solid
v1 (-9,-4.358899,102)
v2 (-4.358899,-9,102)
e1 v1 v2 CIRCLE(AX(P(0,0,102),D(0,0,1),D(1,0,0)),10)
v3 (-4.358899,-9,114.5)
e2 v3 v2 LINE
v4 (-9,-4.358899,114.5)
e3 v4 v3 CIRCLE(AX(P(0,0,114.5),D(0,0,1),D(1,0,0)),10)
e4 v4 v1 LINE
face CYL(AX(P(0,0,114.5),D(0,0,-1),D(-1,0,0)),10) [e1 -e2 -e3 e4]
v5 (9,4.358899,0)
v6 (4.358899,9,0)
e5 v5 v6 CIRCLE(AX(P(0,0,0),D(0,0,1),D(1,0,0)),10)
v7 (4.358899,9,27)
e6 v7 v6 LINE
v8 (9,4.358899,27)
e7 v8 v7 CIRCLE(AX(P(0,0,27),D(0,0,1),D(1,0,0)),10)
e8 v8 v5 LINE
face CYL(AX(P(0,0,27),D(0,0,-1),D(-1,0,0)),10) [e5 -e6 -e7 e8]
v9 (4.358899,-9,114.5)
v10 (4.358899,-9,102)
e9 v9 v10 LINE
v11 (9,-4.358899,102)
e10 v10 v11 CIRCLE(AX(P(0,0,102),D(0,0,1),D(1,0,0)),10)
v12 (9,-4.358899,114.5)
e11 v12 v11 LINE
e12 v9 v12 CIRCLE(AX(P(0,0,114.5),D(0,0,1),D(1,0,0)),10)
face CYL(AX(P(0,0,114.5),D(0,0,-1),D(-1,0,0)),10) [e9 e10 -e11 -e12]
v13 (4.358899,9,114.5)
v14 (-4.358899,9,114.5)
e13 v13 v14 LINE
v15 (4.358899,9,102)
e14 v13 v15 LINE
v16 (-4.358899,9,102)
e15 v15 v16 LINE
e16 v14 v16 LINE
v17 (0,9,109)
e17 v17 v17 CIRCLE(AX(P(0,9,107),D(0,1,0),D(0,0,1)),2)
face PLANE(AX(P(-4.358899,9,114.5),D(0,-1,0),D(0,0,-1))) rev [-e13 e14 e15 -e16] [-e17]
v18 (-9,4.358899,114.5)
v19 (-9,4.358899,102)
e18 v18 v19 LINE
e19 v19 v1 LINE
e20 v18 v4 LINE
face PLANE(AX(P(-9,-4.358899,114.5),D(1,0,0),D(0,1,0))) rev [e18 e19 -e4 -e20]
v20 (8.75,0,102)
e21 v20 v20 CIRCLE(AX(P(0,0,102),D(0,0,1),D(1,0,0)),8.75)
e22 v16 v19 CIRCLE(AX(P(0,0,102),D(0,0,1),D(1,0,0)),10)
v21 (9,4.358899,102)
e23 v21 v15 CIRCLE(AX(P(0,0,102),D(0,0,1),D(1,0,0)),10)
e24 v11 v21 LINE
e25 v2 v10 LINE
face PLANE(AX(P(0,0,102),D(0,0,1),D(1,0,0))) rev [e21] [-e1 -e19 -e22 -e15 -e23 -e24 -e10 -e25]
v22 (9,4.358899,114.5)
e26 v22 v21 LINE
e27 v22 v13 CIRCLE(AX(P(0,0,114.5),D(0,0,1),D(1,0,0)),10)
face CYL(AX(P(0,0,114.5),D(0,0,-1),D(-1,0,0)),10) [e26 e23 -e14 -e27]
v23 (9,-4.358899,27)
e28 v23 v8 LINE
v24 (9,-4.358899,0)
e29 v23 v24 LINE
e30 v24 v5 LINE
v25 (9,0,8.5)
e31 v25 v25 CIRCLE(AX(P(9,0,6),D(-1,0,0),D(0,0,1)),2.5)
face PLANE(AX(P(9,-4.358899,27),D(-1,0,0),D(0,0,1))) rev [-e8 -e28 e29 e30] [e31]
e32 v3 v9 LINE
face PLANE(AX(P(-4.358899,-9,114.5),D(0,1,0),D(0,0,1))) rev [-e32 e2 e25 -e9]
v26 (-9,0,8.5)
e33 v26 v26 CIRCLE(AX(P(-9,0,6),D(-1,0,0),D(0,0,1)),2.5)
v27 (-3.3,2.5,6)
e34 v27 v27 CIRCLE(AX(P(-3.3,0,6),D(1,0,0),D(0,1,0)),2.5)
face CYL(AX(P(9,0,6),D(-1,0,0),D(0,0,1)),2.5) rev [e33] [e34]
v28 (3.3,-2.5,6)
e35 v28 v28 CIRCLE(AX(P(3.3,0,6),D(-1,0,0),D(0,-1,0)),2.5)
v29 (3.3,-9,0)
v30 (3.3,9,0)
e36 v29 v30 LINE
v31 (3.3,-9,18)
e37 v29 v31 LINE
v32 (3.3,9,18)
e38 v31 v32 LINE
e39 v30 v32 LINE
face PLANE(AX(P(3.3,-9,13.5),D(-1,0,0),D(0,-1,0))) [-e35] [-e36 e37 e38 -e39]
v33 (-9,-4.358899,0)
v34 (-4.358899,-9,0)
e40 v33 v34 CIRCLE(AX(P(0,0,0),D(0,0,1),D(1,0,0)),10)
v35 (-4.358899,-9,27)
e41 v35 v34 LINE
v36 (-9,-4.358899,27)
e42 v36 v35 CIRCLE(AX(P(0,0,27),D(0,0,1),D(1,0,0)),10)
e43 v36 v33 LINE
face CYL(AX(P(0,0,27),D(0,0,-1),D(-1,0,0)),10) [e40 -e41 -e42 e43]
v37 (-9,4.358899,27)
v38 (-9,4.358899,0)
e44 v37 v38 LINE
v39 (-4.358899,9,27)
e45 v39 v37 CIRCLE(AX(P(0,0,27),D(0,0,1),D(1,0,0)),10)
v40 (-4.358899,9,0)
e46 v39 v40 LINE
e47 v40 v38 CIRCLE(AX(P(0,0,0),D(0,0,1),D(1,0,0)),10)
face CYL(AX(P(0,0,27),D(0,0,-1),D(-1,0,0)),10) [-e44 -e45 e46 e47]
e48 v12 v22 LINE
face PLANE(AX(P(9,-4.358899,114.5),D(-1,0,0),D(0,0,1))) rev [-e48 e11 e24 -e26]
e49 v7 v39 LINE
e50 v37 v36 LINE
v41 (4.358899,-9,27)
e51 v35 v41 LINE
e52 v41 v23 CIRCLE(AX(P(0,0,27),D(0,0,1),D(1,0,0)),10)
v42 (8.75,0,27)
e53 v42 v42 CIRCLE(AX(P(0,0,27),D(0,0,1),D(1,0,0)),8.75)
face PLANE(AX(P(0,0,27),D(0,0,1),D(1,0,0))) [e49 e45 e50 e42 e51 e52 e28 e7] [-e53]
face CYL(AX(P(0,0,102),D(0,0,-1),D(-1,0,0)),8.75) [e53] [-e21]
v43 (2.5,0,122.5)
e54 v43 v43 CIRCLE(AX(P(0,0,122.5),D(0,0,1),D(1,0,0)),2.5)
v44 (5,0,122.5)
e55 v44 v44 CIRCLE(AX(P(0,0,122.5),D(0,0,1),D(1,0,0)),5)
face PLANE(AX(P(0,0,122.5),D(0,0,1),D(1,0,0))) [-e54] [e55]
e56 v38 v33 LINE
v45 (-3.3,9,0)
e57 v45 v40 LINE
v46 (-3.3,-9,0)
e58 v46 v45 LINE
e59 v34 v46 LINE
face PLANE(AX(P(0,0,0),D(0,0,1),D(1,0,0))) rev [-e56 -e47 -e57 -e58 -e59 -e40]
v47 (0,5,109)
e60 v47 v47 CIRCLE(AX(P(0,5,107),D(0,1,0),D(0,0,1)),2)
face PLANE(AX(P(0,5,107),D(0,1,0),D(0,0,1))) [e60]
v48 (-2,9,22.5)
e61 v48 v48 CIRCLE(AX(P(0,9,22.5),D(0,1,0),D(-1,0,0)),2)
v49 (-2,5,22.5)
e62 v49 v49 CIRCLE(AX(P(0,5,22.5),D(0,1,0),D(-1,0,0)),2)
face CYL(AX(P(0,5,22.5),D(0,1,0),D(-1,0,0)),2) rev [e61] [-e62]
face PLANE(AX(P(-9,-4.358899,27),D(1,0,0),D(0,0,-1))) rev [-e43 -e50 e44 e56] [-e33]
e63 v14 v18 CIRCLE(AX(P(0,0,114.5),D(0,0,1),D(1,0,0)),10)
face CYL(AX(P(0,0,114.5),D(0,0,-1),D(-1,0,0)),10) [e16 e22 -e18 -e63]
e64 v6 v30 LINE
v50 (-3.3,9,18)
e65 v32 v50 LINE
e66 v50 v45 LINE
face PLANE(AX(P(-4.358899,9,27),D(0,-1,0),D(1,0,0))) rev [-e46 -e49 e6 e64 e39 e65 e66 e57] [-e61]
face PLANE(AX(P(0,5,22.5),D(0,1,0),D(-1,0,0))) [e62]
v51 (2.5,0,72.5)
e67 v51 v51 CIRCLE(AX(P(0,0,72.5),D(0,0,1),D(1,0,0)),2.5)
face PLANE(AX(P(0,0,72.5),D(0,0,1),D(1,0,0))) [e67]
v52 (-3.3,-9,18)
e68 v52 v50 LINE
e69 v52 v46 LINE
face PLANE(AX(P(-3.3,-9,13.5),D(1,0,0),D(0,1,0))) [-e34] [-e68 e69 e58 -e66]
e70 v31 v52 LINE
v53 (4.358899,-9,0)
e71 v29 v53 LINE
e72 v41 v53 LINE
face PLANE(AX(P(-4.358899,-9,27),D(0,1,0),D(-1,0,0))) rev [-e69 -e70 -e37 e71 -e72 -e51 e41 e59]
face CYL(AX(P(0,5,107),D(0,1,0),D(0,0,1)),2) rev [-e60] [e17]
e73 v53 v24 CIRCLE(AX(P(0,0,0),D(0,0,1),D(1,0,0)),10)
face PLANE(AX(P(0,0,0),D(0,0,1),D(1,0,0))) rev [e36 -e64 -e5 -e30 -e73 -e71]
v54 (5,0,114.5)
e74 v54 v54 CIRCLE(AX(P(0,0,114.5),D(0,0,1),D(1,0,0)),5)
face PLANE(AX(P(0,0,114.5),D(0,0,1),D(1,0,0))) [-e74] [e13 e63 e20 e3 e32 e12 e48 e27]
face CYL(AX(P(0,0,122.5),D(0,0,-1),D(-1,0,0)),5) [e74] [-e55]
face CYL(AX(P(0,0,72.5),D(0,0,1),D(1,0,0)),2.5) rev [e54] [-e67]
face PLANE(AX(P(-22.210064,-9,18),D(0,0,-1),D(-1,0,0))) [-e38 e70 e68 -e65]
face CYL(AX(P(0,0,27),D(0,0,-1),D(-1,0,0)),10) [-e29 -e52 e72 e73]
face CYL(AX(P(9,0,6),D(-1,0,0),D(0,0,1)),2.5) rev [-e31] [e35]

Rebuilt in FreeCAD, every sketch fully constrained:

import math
import FreeCAD as App
import Part
import Sketcher
Q = App.Units.Quantity

doc = App.newDocument("Part")
body = doc.addObject("PartDesign::Body", "Body")

# Sketch on XY plane
sketch1 = body.newObject("Sketcher::SketchObject", "Sketch")
sketch1.AttachmentSupport = (doc.getObject("XY_Plane"), [""])
sketch1.MapMode = "FlatFace"
sketch1.addGeometry(Part.LineSegment(App.Vector(-4, -9, 0), App.Vector(4, -9, 0)), False)
sketch1.addGeometry(Part.ArcOfCircle(Part.Circle(App.Vector(0, 0, 0), App.Vector(0, 0, 1), 10), math.radians(-64), math.radians(-26)), False)
sketch1.addGeometry(Part.LineSegment(App.Vector(9, -4, 0), App.Vector(9, 4, 0)), False)
sketch1.addGeometry(Part.ArcOfCircle(Part.Circle(App.Vector(0, 0, 0), App.Vector(0, 0, 1), 10), math.radians(26), math.radians(64)), False)
sketch1.addGeometry(Part.LineSegment(App.Vector(4, 9, 0), App.Vector(-4, 9, 0)), False)
sketch1.addGeometry(Part.ArcOfCircle(Part.Circle(App.Vector(0, 0, 0), App.Vector(0, 0, 1), 10), math.radians(116), math.radians(154)), False)
sketch1.addGeometry(Part.LineSegment(App.Vector(-9, 4, 0), App.Vector(-9, -4, 0)), False)
sketch1.addGeometry(Part.ArcOfCircle(Part.Circle(App.Vector(0, 0, 0), App.Vector(0, 0, 1), 10), math.radians(-154), math.radians(-116)), False)
sketch1.addConstraint(Sketcher.Constraint("Coincident", 0, 2, 1, 1))
sketch1.addConstraint(Sketcher.Constraint("Coincident", 1, 2, 2, 1))
sketch1.addConstraint(Sketcher.Constraint("Coincident", 2, 2, 3, 1))
sketch1.addConstraint(Sketcher.Constraint("Coincident", 3, 2, 4, 1))
sketch1.addConstraint(Sketcher.Constraint("Coincident", 4, 2, 5, 1))
sketch1.addConstraint(Sketcher.Constraint("Coincident", 5, 2, 6, 1))
sketch1.addConstraint(Sketcher.Constraint("Coincident", 6, 2, 7, 1))
sketch1.addConstraint(Sketcher.Constraint("Coincident", 7, 2, 0, 1))
sketch1.addConstraint(Sketcher.Constraint("Horizontal", 0))
sketch1.addConstraint(Sketcher.Constraint("Vertical", 2))
sketch1.addConstraint(Sketcher.Constraint("Horizontal", 4))
sketch1.addConstraint(Sketcher.Constraint("Vertical", 6))
sketch1.addConstraint(Sketcher.Constraint("Coincident", 1, 3, -1, 1))
sketch1.addConstraint(Sketcher.Constraint("Coincident", 3, 3, -1, 1))
sketch1.addConstraint(Sketcher.Constraint("Coincident", 5, 3, -1, 1))
sketch1.addConstraint(Sketcher.Constraint("Coincident", 7, 3, -1, 1))
sketch1.addConstraint(Sketcher.Constraint("Equal", 1, 3))
sketch1.addConstraint(Sketcher.Constraint("Equal", 3, 5))
sketch1.addConstraint(Sketcher.Constraint("Equal", 5, 7))
sketch1.addConstraint(Sketcher.Constraint("Horizontal", 2, 2, 5, 2))
sketch1.addConstraint(Sketcher.Constraint("Vertical", 0, 2, 3, 2))
sketch1.addConstraint(Sketcher.Constraint("Equal", 4, 2))
sketch1.addConstraint(Sketcher.Constraint("Radius", 1, Q("10 mm")))
sketch1.addConstraint(Sketcher.Constraint("DistanceY", 0, 2, -1, 1, Q("9 mm")))
pad1 = body.newObject("PartDesign::Pad", "Pad")
pad1.Profile = sketch1
pad1.Length = 27

# Sketch on XY plane
sketch2 = body.newObject("Sketcher::SketchObject", "Sketch001")
sketch2.AttachmentSupport = (doc.getObject("XY_Plane"), [""])
sketch2.MapMode = "FlatFace"
sketch2.AttachmentOffset = App.Placement(App.Vector(0, 0, 27), App.Rotation())
sketch2.addGeometry(Part.Circle(App.Vector(0, 0, 0), App.Vector(0, 0, 1), 9), False)
sketch2.addConstraint(Sketcher.Constraint("Coincident", 0, 3, -1, 1))
sketch2.addConstraint(Sketcher.Constraint("Diameter", 0, Q("17.5 mm")))
pad2 = body.newObject("PartDesign::Pad", "Pad001")
pad2.Profile = sketch2
pad2.Length = 75

# Sketch on XY plane
sketch3 = body.newObject("Sketcher::SketchObject", "Sketch002")
sketch3.AttachmentSupport = (doc.getObject("XY_Plane"), [""])
sketch3.MapMode = "FlatFace"
sketch3.AttachmentOffset = App.Placement(App.Vector(0, 0, 102), App.Rotation())
sketch3.addGeometry(Part.LineSegment(App.Vector(-4, -9, 0), App.Vector(4, -9, 0)), False)
sketch3.addGeometry(Part.ArcOfCircle(Part.Circle(App.Vector(0, 0, 0), App.Vector(0, 0, 1), 10), math.radians(-64), math.radians(-26)), False)
sketch3.addGeometry(Part.LineSegment(App.Vector(9, -4, 0), App.Vector(9, 4, 0)), False)
sketch3.addGeometry(Part.ArcOfCircle(Part.Circle(App.Vector(0, 0, 0), App.Vector(0, 0, 1), 10), math.radians(26), math.radians(64)), False)
sketch3.addGeometry(Part.LineSegment(App.Vector(4, 9, 0), App.Vector(-4, 9, 0)), False)
sketch3.addGeometry(Part.ArcOfCircle(Part.Circle(App.Vector(0, 0, 0), App.Vector(0, 0, 1), 10), math.radians(116), math.radians(154)), False)
sketch3.addGeometry(Part.LineSegment(App.Vector(-9, 4, 0), App.Vector(-9, -4, 0)), False)
sketch3.addGeometry(Part.ArcOfCircle(Part.Circle(App.Vector(0, 0, 0), App.Vector(0, 0, 1), 10), math.radians(-154), math.radians(-116)), False)
sketch3.addConstraint(Sketcher.Constraint("Coincident", 0, 2, 1, 1))
sketch3.addConstraint(Sketcher.Constraint("Coincident", 1, 2, 2, 1))
sketch3.addConstraint(Sketcher.Constraint("Coincident", 2, 2, 3, 1))
sketch3.addConstraint(Sketcher.Constraint("Coincident", 3, 2, 4, 1))
sketch3.addConstraint(Sketcher.Constraint("Coincident", 4, 2, 5, 1))
sketch3.addConstraint(Sketcher.Constraint("Coincident", 5, 2, 6, 1))
sketch3.addConstraint(Sketcher.Constraint("Coincident", 6, 2, 7, 1))
sketch3.addConstraint(Sketcher.Constraint("Coincident", 7, 2, 0, 1))
sketch3.addConstraint(Sketcher.Constraint("Horizontal", 0))
sketch3.addConstraint(Sketcher.Constraint("Vertical", 2))
sketch3.addConstraint(Sketcher.Constraint("Horizontal", 4))
sketch3.addConstraint(Sketcher.Constraint("Vertical", 6))
sketch3.addConstraint(Sketcher.Constraint("Coincident", 1, 3, -1, 1))
sketch3.addConstraint(Sketcher.Constraint("Coincident", 3, 3, -1, 1))
sketch3.addConstraint(Sketcher.Constraint("Coincident", 5, 3, -1, 1))
sketch3.addConstraint(Sketcher.Constraint("Coincident", 7, 3, -1, 1))
sketch3.addConstraint(Sketcher.Constraint("Equal", 1, 3))
sketch3.addConstraint(Sketcher.Constraint("Equal", 3, 5))
sketch3.addConstraint(Sketcher.Constraint("Equal", 5, 7))
sketch3.addConstraint(Sketcher.Constraint("Horizontal", 2, 2, 5, 2))
sketch3.addConstraint(Sketcher.Constraint("Vertical", 0, 2, 3, 2))
sketch3.addConstraint(Sketcher.Constraint("Equal", 4, 2))
sketch3.addConstraint(Sketcher.Constraint("Radius", 1, Q("10 mm")))
sketch3.addConstraint(Sketcher.Constraint("DistanceY", 0, 2, -1, 1, Q("9 mm")))
pad3 = body.newObject("PartDesign::Pad", "Pad002")
pad3.Profile = sketch3
pad3.Length = 12.5

# Sketch on XY plane
sketch4 = body.newObject("Sketcher::SketchObject", "Sketch003")
sketch4.AttachmentSupport = (doc.getObject("XY_Plane"), [""])
sketch4.MapMode = "FlatFace"
sketch4.AttachmentOffset = App.Placement(App.Vector(0, 0, 114.5), App.Rotation())
sketch4.addGeometry(Part.Circle(App.Vector(0, 0, 0), App.Vector(0, 0, 1), 5), False)
sketch4.addConstraint(Sketcher.Constraint("Coincident", 0, 3, -1, 1))
sketch4.addConstraint(Sketcher.Constraint("Diameter", 0, Q("10 mm")))
pad4 = body.newObject("PartDesign::Pad", "Pad003")
pad4.Profile = sketch4
pad4.Length = 8

# Sketch on XY plane
sketch5 = body.newObject("Sketcher::SketchObject", "Sketch004")
sketch5.AttachmentSupport = (doc.getObject("XY_Plane"), [""])
sketch5.MapMode = "FlatFace"
sketch5.AttachmentOffset = App.Placement(App.Vector(0, 0, 122.5), App.Rotation())
sketch5.addGeometry(Part.Circle(App.Vector(0, 0, 0), App.Vector(0, 0, 1), 2.5), False)
sketch5.addConstraint(Sketcher.Constraint("Coincident", 0, 3, -1, 1))
sketch5.addConstraint(Sketcher.Constraint("Diameter", 0, Q("5 mm")))
pocket1 = body.newObject("PartDesign::Pocket", "Pocket")
pocket1.Profile = sketch5
pocket1.Length = 50

# Sketch on XZ plane
sketch6 = body.newObject("Sketcher::SketchObject", "Sketch005")
sketch6.AttachmentSupport = (doc.getObject("XZ_Plane"), [""])
sketch6.MapMode = "FlatFace"
sketch6.AttachmentOffset = App.Placement(App.Vector(0, 0, -9), App.Rotation())
sketch6.addGeometry(Part.Circle(App.Vector(0, 107, 0), App.Vector(0, 0, 1), 2), False)
sketch6.addConstraint(Sketcher.Constraint("PointOnObject", 0, 3, -2))
sketch6.addConstraint(Sketcher.Constraint("Diameter", 0, Q("4 mm")))
sketch6.addConstraint(Sketcher.Constraint("DistanceY", -1, 1, 0, 3, Q("107 mm")))
pocket2 = body.newObject("PartDesign::Pocket", "Pocket001")
pocket2.Profile = sketch6
pocket2.Length = 4
pocket2.Reversed = True

# Sketch on XZ plane
sketch7 = body.newObject("Sketcher::SketchObject", "Sketch006")
sketch7.AttachmentSupport = (doc.getObject("XZ_Plane"), [""])
sketch7.MapMode = "FlatFace"
sketch7.AttachmentOffset = App.Placement(App.Vector(0, 0, -9), App.Rotation())
sketch7.addGeometry(Part.LineSegment(App.Vector(3, 0, 0), App.Vector(-3, 0, 0)), False)
sketch7.addGeometry(Part.LineSegment(App.Vector(-3, 0, 0), App.Vector(-3, 18, 0)), False)
sketch7.addGeometry(Part.LineSegment(App.Vector(-3, 18, 0), App.Vector(3, 18, 0)), False)
sketch7.addGeometry(Part.LineSegment(App.Vector(3, 18, 0), App.Vector(3, 0, 0)), False)
sketch7.addConstraint(Sketcher.Constraint("Coincident", 0, 2, 1, 1))
sketch7.addConstraint(Sketcher.Constraint("Coincident", 1, 2, 2, 1))
sketch7.addConstraint(Sketcher.Constraint("Coincident", 2, 2, 3, 1))
sketch7.addConstraint(Sketcher.Constraint("Coincident", 3, 2, 0, 1))
sketch7.addConstraint(Sketcher.Constraint("Horizontal", 0))
sketch7.addConstraint(Sketcher.Constraint("Vertical", 1))
sketch7.addConstraint(Sketcher.Constraint("Horizontal", 2))
sketch7.addConstraint(Sketcher.Constraint("Vertical", 3))
sketch7.addConstraint(Sketcher.Constraint("Symmetric", 0, 2, 3, 2, -1, 1))
sketch7.addConstraint(Sketcher.Constraint("DistanceY", 1, 1, 1, 2, Q("18 mm")))
sketch7.addConstraint(Sketcher.Constraint("DistanceX", 0, 2, 0, 1, Q("6.6 mm")))
pocket3 = body.newObject("PartDesign::Pocket", "Pocket002")
pocket3.Profile = sketch7
pocket3.Type = "ThroughAll"
pocket3.Reversed = True

# Sketch on XZ plane
sketch8 = body.newObject("Sketcher::SketchObject", "Sketch007")
sketch8.AttachmentSupport = (doc.getObject("XZ_Plane"), [""])
sketch8.MapMode = "FlatFace"
sketch8.AttachmentOffset = App.Placement(App.Vector(0, 0, -9), App.Rotation())
sketch8.addGeometry(Part.Circle(App.Vector(0, 22.5, 0), App.Vector(0, 0, 1), 2), False)
sketch8.addConstraint(Sketcher.Constraint("PointOnObject", 0, 3, -2))
sketch8.addConstraint(Sketcher.Constraint("Diameter", 0, Q("4 mm")))
sketch8.addConstraint(Sketcher.Constraint("DistanceY", -1, 1, 0, 3, Q("22.5 mm")))
pocket4 = body.newObject("PartDesign::Pocket", "Pocket003")
pocket4.Profile = sketch8
pocket4.Length = 4
pocket4.Reversed = True

# Sketch on YZ plane
sketch9 = body.newObject("Sketcher::SketchObject", "Sketch008")
sketch9.AttachmentSupport = (doc.getObject("YZ_Plane"), [""])
sketch9.MapMode = "FlatFace"
sketch9.AttachmentOffset = App.Placement(App.Vector(0, 0, -9), App.Rotation())
sketch9.addGeometry(Part.Circle(App.Vector(0, 6, 0), App.Vector(0, 0, 1), 2.5), False)
sketch9.addConstraint(Sketcher.Constraint("PointOnObject", 0, 3, -2))
sketch9.addConstraint(Sketcher.Constraint("Diameter", 0, Q("5 mm")))
sketch9.addConstraint(Sketcher.Constraint("DistanceY", -1, 1, 0, 3, Q("6 mm")))
pocket5 = body.newObject("PartDesign::Pocket", "Pocket004")
pocket5.Profile = sketch9
pocket5.Type = "ThroughAll"
pocket5.Reversed = True

doc.recompute()
